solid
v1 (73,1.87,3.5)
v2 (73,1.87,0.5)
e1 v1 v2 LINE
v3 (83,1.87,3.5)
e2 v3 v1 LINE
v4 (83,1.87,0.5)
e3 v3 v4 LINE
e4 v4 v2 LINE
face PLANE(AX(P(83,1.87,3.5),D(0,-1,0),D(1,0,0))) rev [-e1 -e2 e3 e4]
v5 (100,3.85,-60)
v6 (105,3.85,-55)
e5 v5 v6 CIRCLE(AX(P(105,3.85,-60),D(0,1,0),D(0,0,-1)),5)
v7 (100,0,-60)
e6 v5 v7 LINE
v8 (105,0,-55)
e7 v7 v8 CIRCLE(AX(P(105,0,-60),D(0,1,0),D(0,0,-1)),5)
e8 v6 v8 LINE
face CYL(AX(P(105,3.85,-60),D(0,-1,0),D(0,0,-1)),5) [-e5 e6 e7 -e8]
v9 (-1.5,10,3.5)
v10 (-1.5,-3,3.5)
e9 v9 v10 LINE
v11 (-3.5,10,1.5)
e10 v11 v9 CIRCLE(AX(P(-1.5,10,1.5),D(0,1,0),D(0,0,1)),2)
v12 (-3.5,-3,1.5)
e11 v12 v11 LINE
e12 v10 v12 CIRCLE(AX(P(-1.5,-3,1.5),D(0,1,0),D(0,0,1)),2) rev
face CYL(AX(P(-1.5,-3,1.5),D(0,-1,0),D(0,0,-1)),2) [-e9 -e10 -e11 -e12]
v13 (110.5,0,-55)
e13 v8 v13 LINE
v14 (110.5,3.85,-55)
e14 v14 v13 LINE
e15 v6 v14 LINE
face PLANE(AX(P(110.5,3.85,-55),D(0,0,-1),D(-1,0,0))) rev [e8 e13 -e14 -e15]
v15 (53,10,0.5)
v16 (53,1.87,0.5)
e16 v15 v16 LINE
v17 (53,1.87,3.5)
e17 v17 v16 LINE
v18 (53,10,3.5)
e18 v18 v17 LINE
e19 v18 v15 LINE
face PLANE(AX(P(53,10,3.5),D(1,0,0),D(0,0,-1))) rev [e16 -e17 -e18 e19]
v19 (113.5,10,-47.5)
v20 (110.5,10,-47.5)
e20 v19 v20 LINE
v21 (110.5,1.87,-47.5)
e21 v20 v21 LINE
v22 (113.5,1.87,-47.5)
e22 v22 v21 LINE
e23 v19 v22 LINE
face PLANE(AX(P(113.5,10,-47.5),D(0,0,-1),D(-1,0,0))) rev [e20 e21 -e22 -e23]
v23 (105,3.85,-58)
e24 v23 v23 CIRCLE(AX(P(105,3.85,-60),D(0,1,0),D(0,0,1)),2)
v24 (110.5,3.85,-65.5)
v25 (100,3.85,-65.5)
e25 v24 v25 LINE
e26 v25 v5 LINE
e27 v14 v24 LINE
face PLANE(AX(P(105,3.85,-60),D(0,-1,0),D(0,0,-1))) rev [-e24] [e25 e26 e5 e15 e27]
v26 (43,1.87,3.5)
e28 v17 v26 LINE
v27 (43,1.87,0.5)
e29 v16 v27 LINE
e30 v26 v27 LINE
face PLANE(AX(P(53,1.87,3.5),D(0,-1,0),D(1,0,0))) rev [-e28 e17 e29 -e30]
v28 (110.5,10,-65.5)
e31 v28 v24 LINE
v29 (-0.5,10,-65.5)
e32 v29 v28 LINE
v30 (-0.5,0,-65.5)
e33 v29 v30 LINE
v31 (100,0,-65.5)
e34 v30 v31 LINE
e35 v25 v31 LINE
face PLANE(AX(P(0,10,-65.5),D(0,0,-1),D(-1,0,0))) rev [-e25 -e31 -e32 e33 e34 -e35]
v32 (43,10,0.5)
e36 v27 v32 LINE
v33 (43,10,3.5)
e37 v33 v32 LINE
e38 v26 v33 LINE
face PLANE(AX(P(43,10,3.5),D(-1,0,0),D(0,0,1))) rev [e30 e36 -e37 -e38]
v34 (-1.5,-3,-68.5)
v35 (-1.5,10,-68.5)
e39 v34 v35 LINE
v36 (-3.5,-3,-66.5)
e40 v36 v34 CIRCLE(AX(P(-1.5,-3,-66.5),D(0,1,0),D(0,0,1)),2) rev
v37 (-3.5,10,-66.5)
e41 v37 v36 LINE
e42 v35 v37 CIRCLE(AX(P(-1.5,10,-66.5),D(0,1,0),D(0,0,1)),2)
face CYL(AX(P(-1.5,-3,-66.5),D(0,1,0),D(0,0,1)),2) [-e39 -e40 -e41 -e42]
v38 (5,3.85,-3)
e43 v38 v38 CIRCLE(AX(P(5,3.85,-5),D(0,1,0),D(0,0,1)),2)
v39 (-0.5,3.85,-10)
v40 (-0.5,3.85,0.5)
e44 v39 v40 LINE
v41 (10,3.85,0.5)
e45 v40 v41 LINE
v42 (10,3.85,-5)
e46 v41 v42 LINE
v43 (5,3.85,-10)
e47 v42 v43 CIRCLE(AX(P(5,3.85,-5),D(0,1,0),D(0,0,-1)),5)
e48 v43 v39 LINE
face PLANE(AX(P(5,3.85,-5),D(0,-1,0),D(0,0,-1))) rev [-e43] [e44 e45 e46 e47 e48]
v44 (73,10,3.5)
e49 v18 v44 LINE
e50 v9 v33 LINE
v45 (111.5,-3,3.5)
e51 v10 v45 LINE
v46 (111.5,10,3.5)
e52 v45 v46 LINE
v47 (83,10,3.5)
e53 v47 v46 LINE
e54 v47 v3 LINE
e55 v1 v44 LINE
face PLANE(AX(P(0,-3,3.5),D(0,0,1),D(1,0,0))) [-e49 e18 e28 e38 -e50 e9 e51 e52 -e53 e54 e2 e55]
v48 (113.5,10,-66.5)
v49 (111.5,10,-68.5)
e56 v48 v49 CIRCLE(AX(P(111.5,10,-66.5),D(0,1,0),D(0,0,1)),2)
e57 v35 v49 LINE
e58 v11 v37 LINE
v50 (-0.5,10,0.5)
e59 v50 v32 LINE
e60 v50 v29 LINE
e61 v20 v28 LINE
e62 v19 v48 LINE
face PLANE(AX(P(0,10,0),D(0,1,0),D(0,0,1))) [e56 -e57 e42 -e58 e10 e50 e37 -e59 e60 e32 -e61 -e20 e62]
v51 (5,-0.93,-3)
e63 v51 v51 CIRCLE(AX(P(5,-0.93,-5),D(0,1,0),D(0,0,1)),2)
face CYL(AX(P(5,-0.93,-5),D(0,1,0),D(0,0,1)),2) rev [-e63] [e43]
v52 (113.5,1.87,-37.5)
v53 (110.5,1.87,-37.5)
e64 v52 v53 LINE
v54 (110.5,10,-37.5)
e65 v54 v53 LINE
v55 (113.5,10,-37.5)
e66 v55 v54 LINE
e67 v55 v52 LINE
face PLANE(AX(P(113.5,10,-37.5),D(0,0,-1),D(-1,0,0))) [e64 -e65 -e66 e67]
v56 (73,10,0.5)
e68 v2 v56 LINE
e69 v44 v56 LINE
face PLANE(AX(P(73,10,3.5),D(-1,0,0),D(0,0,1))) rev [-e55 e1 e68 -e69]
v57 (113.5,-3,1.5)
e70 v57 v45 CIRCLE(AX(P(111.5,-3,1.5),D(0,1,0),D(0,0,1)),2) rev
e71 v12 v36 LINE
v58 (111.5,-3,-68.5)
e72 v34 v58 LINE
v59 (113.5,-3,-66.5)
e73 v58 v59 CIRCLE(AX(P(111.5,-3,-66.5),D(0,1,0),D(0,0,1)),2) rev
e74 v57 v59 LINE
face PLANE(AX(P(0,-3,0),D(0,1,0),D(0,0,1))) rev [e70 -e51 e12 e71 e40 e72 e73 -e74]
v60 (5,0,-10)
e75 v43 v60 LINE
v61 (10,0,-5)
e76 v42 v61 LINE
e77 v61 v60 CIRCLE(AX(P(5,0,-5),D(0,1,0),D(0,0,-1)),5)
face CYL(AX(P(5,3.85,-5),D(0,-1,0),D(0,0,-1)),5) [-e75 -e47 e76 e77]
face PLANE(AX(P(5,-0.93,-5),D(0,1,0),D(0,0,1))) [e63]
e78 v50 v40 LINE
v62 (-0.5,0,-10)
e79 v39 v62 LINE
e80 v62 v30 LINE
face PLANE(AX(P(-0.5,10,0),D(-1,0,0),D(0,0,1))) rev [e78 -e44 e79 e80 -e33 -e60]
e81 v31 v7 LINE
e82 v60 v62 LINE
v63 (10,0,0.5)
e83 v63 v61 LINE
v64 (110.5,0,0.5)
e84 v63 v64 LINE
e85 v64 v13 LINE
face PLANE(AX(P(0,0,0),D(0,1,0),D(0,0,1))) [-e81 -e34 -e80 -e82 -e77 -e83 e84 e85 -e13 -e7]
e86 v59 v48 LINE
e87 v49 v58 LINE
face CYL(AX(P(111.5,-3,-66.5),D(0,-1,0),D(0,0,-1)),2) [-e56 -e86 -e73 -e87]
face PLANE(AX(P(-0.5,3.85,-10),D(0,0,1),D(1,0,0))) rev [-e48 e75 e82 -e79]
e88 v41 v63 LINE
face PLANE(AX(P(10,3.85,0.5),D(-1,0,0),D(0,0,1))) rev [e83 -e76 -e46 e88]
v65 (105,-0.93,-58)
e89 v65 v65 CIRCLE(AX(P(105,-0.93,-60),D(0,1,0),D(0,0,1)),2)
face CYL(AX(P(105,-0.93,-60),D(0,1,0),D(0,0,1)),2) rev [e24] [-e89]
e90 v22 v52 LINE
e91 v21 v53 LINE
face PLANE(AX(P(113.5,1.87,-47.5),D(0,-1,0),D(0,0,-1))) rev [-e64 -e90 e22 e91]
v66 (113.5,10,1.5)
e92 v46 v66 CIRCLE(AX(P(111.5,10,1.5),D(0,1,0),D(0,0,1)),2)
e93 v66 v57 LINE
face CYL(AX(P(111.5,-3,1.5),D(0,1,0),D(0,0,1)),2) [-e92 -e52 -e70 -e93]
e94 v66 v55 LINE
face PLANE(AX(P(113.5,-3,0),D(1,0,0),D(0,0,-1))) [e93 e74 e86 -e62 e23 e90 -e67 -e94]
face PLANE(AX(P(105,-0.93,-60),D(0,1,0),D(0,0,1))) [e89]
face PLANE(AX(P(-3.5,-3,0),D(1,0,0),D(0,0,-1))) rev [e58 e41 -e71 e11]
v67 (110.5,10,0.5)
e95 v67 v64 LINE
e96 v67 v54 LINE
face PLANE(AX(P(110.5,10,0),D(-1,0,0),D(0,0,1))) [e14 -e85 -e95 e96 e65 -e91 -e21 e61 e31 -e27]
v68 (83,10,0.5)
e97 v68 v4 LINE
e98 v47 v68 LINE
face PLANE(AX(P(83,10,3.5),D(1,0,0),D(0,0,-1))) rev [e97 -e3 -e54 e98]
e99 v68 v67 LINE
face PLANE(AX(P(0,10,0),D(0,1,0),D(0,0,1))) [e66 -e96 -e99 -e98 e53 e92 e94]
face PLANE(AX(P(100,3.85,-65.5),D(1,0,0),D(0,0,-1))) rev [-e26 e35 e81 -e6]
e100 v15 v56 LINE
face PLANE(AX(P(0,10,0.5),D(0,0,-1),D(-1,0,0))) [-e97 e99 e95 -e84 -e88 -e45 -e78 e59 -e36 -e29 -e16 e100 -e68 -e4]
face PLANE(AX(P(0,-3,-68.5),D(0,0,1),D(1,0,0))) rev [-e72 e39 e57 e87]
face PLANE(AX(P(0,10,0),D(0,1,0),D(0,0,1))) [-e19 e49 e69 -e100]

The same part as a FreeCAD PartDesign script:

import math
import FreeCAD as App
import Part
import Sketcher

V = App.Vector
Q = App.Units.Quantity


def edges_at(feature, points):
    """Names of the edges that pass closest to the given points."""
    edges = feature.Shape.Edges
    near = lambda p: min(range(len(edges)), key=lambda i: edges[i].distToShape(Part.Vertex(*p))[0])
    return sorted({f"Edge{near(p) + 1}" for p in points})

doc = App.newDocument("Part")
params = doc.addObject("Spreadsheet::Sheet", "Params")
for row, (alias, value) in enumerate([
    ("sketch1_width", "117 mm"),
    ("sketch1_height", "72 mm"),
    ("pad1_length", "3 mm"),
    ("sketch2_width", "117 mm"),
    ("sketch2_width2", "111 mm"),
    ("sketch2_height", "72 mm"),
    ("sketch2_height2", "66 mm"),
    ("pad2_length", "10 mm"),
    ("sketch3_radius", "5 mm"),
    ("sketch3_width", "10.5 mm"),
    ("pad3_length", "3.85 mm"),
    ("sketch4_diameter", "4 mm"),
    ("pocket1_length", "4.78 mm"),
    ("fillet_radius", "2 mm"),
    ("sketch5_height", "10 mm"),
    ("sketch5_width", "8.13 mm"),
    ("sketch6_width", "10 mm"),
    ("sketch6_height", "8.13 mm"),
], start=1):
    params.set(f"A{row}", alias)
    params.set(f"B{row}", "=" + value)
    params.setAlias(f"B{row}", alias)

body = doc.addObject("PartDesign::Body", "Body")

# Sketch on XZ plane
sketch1 = body.newObject("Sketcher::SketchObject", "Sketch")
sketch1.AttachmentSupport = (doc.getObject("XZ_Plane"), [""])
sketch1.MapMode = "FlatFace"
sketch1.addGeometry(Part.LineSegment(V(-4, -68, 0), V(-4, 4, 0)), False)
sketch1.addGeometry(Part.LineSegment(V(-4, 4, 0), V(114, 4, 0)), False)
sketch1.addGeometry(Part.LineSegment(V(114, 4, 0), V(114, -68, 0)), False)
sketch1.addGeometry(Part.LineSegment(V(114, -68, 0), V(-4, -68, 0)), False)
sketch1.addConstraint(Sketcher.Constraint("Coincident", 0, 2, 1, 1))
sketch1.addConstraint(Sketcher.Constraint("Coincident", 1, 2, 2, 1))
sketch1.addConstraint(Sketcher.Constraint("Coincident", 2, 2, 3, 1))
sketch1.addConstraint(Sketcher.Constraint("Coincident", 3, 2, 0, 1))
sketch1.addConstraint(Sketcher.Constraint("Vertical", 0))
sketch1.addConstraint(Sketcher.Constraint("Horizontal", 1))
sketch1.addConstraint(Sketcher.Constraint("Vertical", 2))
sketch1.addConstraint(Sketcher.Constraint("Horizontal", 3))
sketch1.addConstraint(Sketcher.Constraint("DistanceX", 1, 1, 1, 2, Q("117 mm")))
sketch1.addConstraint(Sketcher.Constraint("DistanceY", 0, 1, 0, 2, Q("72 mm")))
sketch1.addConstraint(Sketcher.Constraint("DistanceX", 0, 2, -1, 1, Q("3.5 mm")))
sketch1.addConstraint(Sketcher.Constraint("DistanceY", -1, 1, 0, 2, Q("3.5 mm")))
sketch1.setExpression("Constraints[8]", "Params.sketch1_width")
sketch1.setExpression("Constraints[9]", "Params.sketch1_height")
pad1 = body.newObject("PartDesign::Pad", "Pad")
pad1.Profile = sketch1
pad1.setExpression("Length", "Params.pad1_length")

# Sketch on XZ plane
sketch2 = body.newObject("Sketcher::SketchObject", "Sketch001")
sketch2.AttachmentSupport = (doc.getObject("XZ_Plane"), [""])
sketch2.MapMode = "FlatFace"
sketch2.addGeometry(Part.LineSegment(V(-4, -68, 0), V(-4, 4, 0)), False)
sketch2.addGeometry(Part.LineSegment(V(-4, 4, 0), V(114, 4, 0)), False)
sketch2.addGeometry(Part.LineSegment(V(114, 4, 0), V(114, -68, 0)), False)
sketch2.addGeometry(Part.LineSegment(V(114, -68, 0), V(-4, -68, 0)), False)
sketch2.addGeometry(Part.LineSegment(V(110, 0, 0), V(0, 0, 0)), False)
sketch2.addGeometry(Part.LineSegment(V(0, 0, 0), V(0, -66, 0)), False)
sketch2.addGeometry(Part.LineSegment(V(0, -66, 0), V(110, -66, 0)), False)
sketch2.addGeometry(Part.LineSegment(V(110, -66, 0), V(110, 0, 0)), False)
sketch2.addConstraint(Sketcher.Constraint("Coincident", 0, 2, 1, 1))
sketch2.addConstraint(Sketcher.Constraint("Coincident", 1, 2, 2, 1))
sketch2.addConstraint(Sketcher.Constraint("Coincident", 2, 2, 3, 1))
sketch2.addConstraint(Sketcher.Constraint("Coincident", 3, 2, 0, 1))
sketch2.addConstraint(Sketcher.Constraint("Coincident", 4, 2, 5, 1))
sketch2.addConstraint(Sketcher.Constraint("Coincident", 5, 2, 6, 1))
sketch2.addConstraint(Sketcher.Constraint("Coincident", 6, 2, 7, 1))
sketch2.addConstraint(Sketcher.Constraint("Coincident", 7, 2, 4, 1))
sketch2.addConstraint(Sketcher.Constraint("Vertical", 0))
sketch2.addConstraint(Sketcher.Constraint("Horizontal", 1))
sketch2.addConstraint(Sketcher.Constraint("Vertical", 2))
sketch2.addConstraint(Sketcher.Constraint("Horizontal", 3))
sketch2.addConstraint(Sketcher.Constraint("Horizontal", 4))
sketch2.addConstraint(Sketcher.Constraint("Vertical", 5))
sketch2.addConstraint(Sketcher.Constraint("Horizontal", 6))
sketch2.addConstraint(Sketcher.Constraint("Vertical", 7))
sketch2.addConstraint(Sketcher.Constraint("DistanceX", 1, 1, 1, 2, Q("117 mm")))
sketch2.addConstraint(Sketcher.Constraint("DistanceX", 4, 2, 4, 1, Q("111 mm")))
sketch2.addConstraint(Sketcher.Constraint("DistanceY", 0, 1, 0, 2, Q("72 mm")))
sketch2.addConstraint(Sketcher.Constraint("DistanceY", 5, 2, 5, 1, Q("66 mm")))
sketch2.addConstraint(Sketcher.Constraint("DistanceX", 0, 2, 4, 2, Q("3 mm")))
sketch2.addConstraint(Sketcher.Constraint("DistanceY", 4, 2, 0, 2, Q("3 mm")))
sketch2.addConstraint(Sketcher.Constraint("DistanceX", 0, 2, -1, 1, Q("3.5 mm")))
sketch2.addConstraint(Sketcher.Constraint("DistanceY", -1, 1, 0, 2, Q("3.5 mm")))
sketch2.setExpression("Constraints[16]", "Params.sketch2_width")
sketch2.setExpression("Constraints[17]", "Params.sketch2_width2")
sketch2.setExpression("Constraints[18]", "Params.sketch2_height")
sketch2.setExpression("Constraints[19]", "Params.sketch2_height2")
pad2 = body.newObject("PartDesign::Pad", "Pad001")
pad2.Profile = sketch2
pad2.setExpression("Length", "Params.pad2_length")
pad2.Reversed = True

# Sketch on XZ plane
sketch3 = body.newObject("Sketcher::SketchObject", "Sketch002")
sketch3.AttachmentSupport = (doc.getObject("XZ_Plane"), [""])
sketch3.MapMode = "FlatFace"
sketch3.addGeometry(Part.LineSegment(V(110, -66, 0), V(100, -66, 0)), False)
sketch3.addGeometry(Part.LineSegment(V(100, -66, 0), V(100, -60, 0)), False)
sketch3.addGeometry(Part.ArcOfCircle(Part.Circle(V(105, -60, 0), V(0, 0, 1), 5), math.radians(90), math.radians(180)), False)
sketch3.addGeometry(Part.LineSegment(V(105, -55, 0), V(110, -55, 0)), False)
sketch3.addGeometry(Part.LineSegment(V(110, -55, 0), V(110, -66, 0)), False)
sketch3.addGeometry(Part.LineSegment(V(0, 0, 0), V(10, 0, 0)), False)
sketch3.addGeometry(Part.LineSegment(V(10, 0, 0), V(10, -5, 0)), False)
sketch3.addGeometry(Part.ArcOfCircle(Part.Circle(V(5, -5, 0), V(0, 0, 1), 5), math.radians(-90), math.radians(0)), False)
sketch3.addGeometry(Part.LineSegment(V(5, -10, 0), V(0, -10, 0)), False)
sketch3.addGeometry(Part.LineSegment(V(0, -10, 0), V(0, 0, 0)), False)
sketch3.addConstraint(Sketcher.Constraint("Coincident", 0, 2, 1, 1))
sketch3.addConstraint(Sketcher.Constraint("Tangent", 1, 2, 2, 2))
sketch3.addConstraint(Sketcher.Constraint("Tangent", 2, 1, 3, 1))
sketch3.addConstraint(Sketcher.Constraint("Coincident", 3, 2, 4, 1))
sketch3.addConstraint(Sketcher.Constraint("Coincident", 4, 2, 0, 1))
sketch3.addConstraint(Sketcher.Constraint("Coincident", 5, 2, 6, 1))
sketch3.addConstraint(Sketcher.Constraint("Tangent", 6, 2, 7, 2))
sketch3.addConstraint(Sketcher.Constraint("Tangent", 7, 1, 8, 1))
sketch3.addConstraint(Sketcher.Constraint("Coincident", 8, 2, 9, 1))
sketch3.addConstraint(Sketcher.Constraint("Coincident", 9, 2, 5, 1))
sketch3.addConstraint(Sketcher.Constraint("Horizontal", 0))
sketch3.addConstraint(Sketcher.Constraint("Vertical", 1))
sketch3.addConstraint(Sketcher.Constraint("Horizontal", 3))
sketch3.addConstraint(Sketcher.Constraint("Vertical", 4))
sketch3.addConstraint(Sketcher.Constraint("Horizontal", 5))
sketch3.addConstraint(Sketcher.Constraint("Vertical", 6))
sketch3.addConstraint(Sketcher.Constraint("Horizontal", 8))
sketch3.addConstraint(Sketcher.Constraint("Vertical", 9))
sketch3.addConstraint(Sketcher.Constraint("Equal", 2, 7))
sketch3.addConstraint(Sketcher.Constraint("Equal", 0, 5))
sketch3.addConstraint(Sketcher.Constraint("Equal", 8, 1))
sketch3.addConstraint(Sketcher.Constraint("Equal", 1, 6))
sketch3.addConstraint(Sketcher.Constraint("Radius", 2, Q("5 mm")))
sketch3.addConstraint(Sketcher.Constraint("DistanceX", 0, 2, 0, 1, Q("10.5 mm")))
sketch3.addConstraint(Sketcher.Constraint("DistanceX", -1, 1, 2, 3, Q("105 mm")))
sketch3.addConstraint(Sketcher.Constraint("DistanceY", 2, 3, -1, 1, Q("60 mm")))
sketch3.addConstraint(Sketcher.Constraint("DistanceX", -1, 1, 7, 3, Q("5 mm")))
sketch3.addConstraint(Sketcher.Constraint("DistanceY", 7, 3, -1, 1, Q("5 mm")))
sketch3.setExpression("Constraints[22]", "Params.sketch3_radius")
sketch3.setExpression("Constraints[23]", "Params.sketch3_width")
pad3 = body.newObject("PartDesign::Pad", "Pad002")
pad3.Profile = sketch3
pad3.setExpression("Length", "Params.pad3_length")
pad3.Reversed = True

# Sketch on XZ plane
sketch4 = body.newObject("Sketcher::SketchObject", "Sketch003")
sketch4.AttachmentSupport = (doc.getObject("XZ_Plane"), [""])
sketch4.MapMode = "FlatFace"
sketch4.AttachmentOffset = App.Placement(V(0, 0, -3.85), App.Rotation())
sketch4.addGeometry(Part.Circle(V(105, -60, 0), V(0, 0, 1), 2), False)
sketch4.addGeometry(Part.Circle(V(5, -5, 0), V(0, 0, 1), 2), False)
sketch4.addConstraint(Sketcher.Constraint("Equal", 0, 1))
sketch4.addConstraint(Sketcher.Constraint("Diameter", 0, Q("4 mm")))
sketch4.addConstraint(Sketcher.Constraint("DistanceX", -1, 1, 0, 3, Q("105 mm")))
sketch4.addConstraint(Sketcher.Constraint("DistanceY", 0, 3, -1, 1, Q("60 mm")))
sketch4.addConstraint(Sketcher.Constraint("DistanceX", -1, 1, 1, 3, Q("5 mm")))
sketch4.addConstraint(Sketcher.Constraint("DistanceY", 1, 3, -1, 1, Q("5 mm")))
sketch4.setExpression("Constraints[1]", "Params.sketch4_diameter")
pocket1 = body.newObject("PartDesign::Pocket", "Pocket")
pocket1.Profile = sketch4
pocket1.setExpression("Length", "Params.pocket1_length")
pocket1.Reversed = True
doc.recompute()

fillet = body.newObject("PartDesign::Fillet", "Fillet")
fillet.Base = (pocket1, edges_at(pocket1, [
    (-3.5, 3.5, -68.5),
    (113.5, 3.5, -68.5),
    (113.5, 3.5, 3.5),
    (-3.5, 3.5, 3.5),
]))
fillet.setExpression("Radius", "Params.fillet_radius")

# Sketch on YZ plane
sketch5 = body.newObject("Sketcher::SketchObject", "Sketch004")
sketch5.AttachmentSupport = (doc.getObject("YZ_Plane"), [""])
sketch5.MapMode = "FlatFace"
sketch5.AttachmentOffset = App.Placement(V(0, 0, 110.5), App.Rotation())
sketch5.addGeometry(Part.LineSegment(V(10, -48, 0), V(2, -48, 0)), False)
sketch5.addGeometry(Part.LineSegment(V(2, -48, 0), V(2, -38, 0)), False)
sketch5.addGeometry(Part.LineSegment(V(2, -38, 0), V(10, -38, 0)), False)
sketch5.addGeometry(Part.LineSegment(V(10, -38, 0), V(10, -48, 0)), False)
sketch5.addConstraint(Sketcher.Constraint("Coincident", 0, 2, 1, 1))
sketch5.addConstraint(Sketcher.Constraint("Coincident", 1, 2, 2, 1))
sketch5.addConstraint(Sketcher.Constraint("Coincident", 2, 2, 3, 1))
sketch5.addConstraint(Sketcher.Constraint("Coincident", 3, 2, 0, 1))
sketch5.addConstraint(Sketcher.Constraint("Horizontal", 0))
sketch5.addConstraint(Sketcher.Constraint("Vertical", 1))
sketch5.addConstraint(Sketcher.Constraint("Horizontal", 2))
sketch5.addConstraint(Sketcher.Constraint("Vertical", 3))
sketch5.addConstraint(Sketcher.Constraint("DistanceY", 1, 1, 1, 2, Q("10 mm")))
sketch5.addConstraint(Sketcher.Constraint("DistanceX", -1, 1, 2, 2, Q("10 mm")))
sketch5.addConstraint(Sketcher.Constraint("DistanceX", 0, 2, 0, 1, Q("8.13 mm")))
sketch5.addConstraint(Sketcher.Constraint("DistanceY", 0, 2, -1, 1, Q("47.5 mm")))
sketch5.setExpression("Constraints[8]", "Params.sketch5_height")
sketch5.setExpression("Constraints[10]", "Params.sketch5_width")
pocket2 = body.newObject("PartDesign::Pocket", "Pocket001")
pocket2.Profile = sketch5
pocket2.Type = "ThroughAll"
pocket2.Reversed = True

# Sketch on XY plane
sketch6 = body.newObject("Sketcher::SketchObject", "Sketch005")
sketch6.AttachmentSupport = (doc.getObject("XY_Plane"), [""])
sketch6.MapMode = "FlatFace"
sketch6.AttachmentOffset = App.Placement(V(0, 0, 0.5), App.Rotation())
sketch6.addGeometry(Part.LineSegment(V(83, 10, 0), V(83, 2, 0)), False)
sketch6.addGeometry(Part.LineSegment(V(83, 2, 0), V(73, 2, 0)), False)
sketch6.addGeometry(Part.LineSegment(V(73, 2, 0), V(73, 10, 0)), False)
sketch6.addGeometry(Part.LineSegment(V(73, 10, 0), V(83, 10, 0)), False)
sketch6.addGeometry(Part.LineSegment(V(53, 10, 0), V(53, 2, 0)), False)
sketch6.addGeometry(Part.LineSegment(V(53, 2, 0), V(43, 2, 0)), False)
sketch6.addGeometry(Part.LineSegment(V(43, 2, 0), V(43, 10, 0)), False)
sketch6.addGeometry(Part.LineSegment(V(43, 10, 0), V(53, 10, 0)), False)
sketch6.addConstraint(Sketcher.Constraint("Coincident", 0, 2, 1, 1))
sketch6.addConstraint(Sketcher.Constraint("Coincident", 1, 2, 2, 1))
sketch6.addConstraint(Sketcher.Constraint("Coincident", 2, 2, 3, 1))
sketch6.addConstraint(Sketcher.Constraint("Coincident", 3, 2, 0, 1))
sketch6.addConstraint(Sketcher.Constraint("Coincident", 4, 2, 5, 1))
sketch6.addConstraint(Sketcher.Constraint("Coincident", 5, 2, 6, 1))
sketch6.addConstraint(Sketcher.Constraint("Coincident", 6, 2, 7, 1))
sketch6.addConstraint(Sketcher.Constraint("Coincident", 7, 2, 4, 1))
sketch6.addConstraint(Sketcher.Constraint("Vertical", 0))
sketch6.addConstraint(Sketcher.Constraint("Horizontal", 1))
sketch6.addConstraint(Sketcher.Constraint("Vertical", 2))
sketch6.addConstraint(Sketcher.Constraint("Horizontal", 3))
sketch6.addConstraint(Sketcher.Constraint("Vertical", 4))
sketch6.addConstraint(Sketcher.Constraint("Horizontal", 5))
sketch6.addConstraint(Sketcher.Constraint("Vertical", 6))
sketch6.addConstraint(Sketcher.Constraint("Horizontal", 7))
sketch6.addConstraint(Sketcher.Constraint("Horizontal", 1, 2, 4, 2))
sketch6.addConstraint(Sketcher.Constraint("Horizontal", 3, 2, 6, 2))
sketch6.addConstraint(Sketcher.Constraint("Equal", 3, 5))
sketch6.addConstraint(Sketcher.Constraint("DistanceX", 1, 2, 1, 1, Q("10 mm")))
sketch6.addConstraint(Sketcher.Constraint("DistanceX", -1, 1, 0, 2, Q("83 mm")))
sketch6.addConstraint(Sketcher.Constraint("DistanceY", -1, 1, 2, 2, Q("10 mm")))
sketch6.addConstraint(Sketcher.Constraint("DistanceX", -1, 1, 4, 2, Q("53 mm")))
sketch6.addConstraint(Sketcher.Constraint("DistanceY", 0, 2, 0, 1, Q("8.13 mm")))
sketch6.setExpression("Constraints[19]", "Params.sketch6_width")
sketch6.setExpression("Constraints[23]", "Params.sketch6_height")
pocket3 = body.newObject("PartDesign::Pocket", "Pocket002")
pocket3.Profile = sketch6
pocket3.Type = "ThroughAll"
pocket3.Reversed = True

doc.recompute()
